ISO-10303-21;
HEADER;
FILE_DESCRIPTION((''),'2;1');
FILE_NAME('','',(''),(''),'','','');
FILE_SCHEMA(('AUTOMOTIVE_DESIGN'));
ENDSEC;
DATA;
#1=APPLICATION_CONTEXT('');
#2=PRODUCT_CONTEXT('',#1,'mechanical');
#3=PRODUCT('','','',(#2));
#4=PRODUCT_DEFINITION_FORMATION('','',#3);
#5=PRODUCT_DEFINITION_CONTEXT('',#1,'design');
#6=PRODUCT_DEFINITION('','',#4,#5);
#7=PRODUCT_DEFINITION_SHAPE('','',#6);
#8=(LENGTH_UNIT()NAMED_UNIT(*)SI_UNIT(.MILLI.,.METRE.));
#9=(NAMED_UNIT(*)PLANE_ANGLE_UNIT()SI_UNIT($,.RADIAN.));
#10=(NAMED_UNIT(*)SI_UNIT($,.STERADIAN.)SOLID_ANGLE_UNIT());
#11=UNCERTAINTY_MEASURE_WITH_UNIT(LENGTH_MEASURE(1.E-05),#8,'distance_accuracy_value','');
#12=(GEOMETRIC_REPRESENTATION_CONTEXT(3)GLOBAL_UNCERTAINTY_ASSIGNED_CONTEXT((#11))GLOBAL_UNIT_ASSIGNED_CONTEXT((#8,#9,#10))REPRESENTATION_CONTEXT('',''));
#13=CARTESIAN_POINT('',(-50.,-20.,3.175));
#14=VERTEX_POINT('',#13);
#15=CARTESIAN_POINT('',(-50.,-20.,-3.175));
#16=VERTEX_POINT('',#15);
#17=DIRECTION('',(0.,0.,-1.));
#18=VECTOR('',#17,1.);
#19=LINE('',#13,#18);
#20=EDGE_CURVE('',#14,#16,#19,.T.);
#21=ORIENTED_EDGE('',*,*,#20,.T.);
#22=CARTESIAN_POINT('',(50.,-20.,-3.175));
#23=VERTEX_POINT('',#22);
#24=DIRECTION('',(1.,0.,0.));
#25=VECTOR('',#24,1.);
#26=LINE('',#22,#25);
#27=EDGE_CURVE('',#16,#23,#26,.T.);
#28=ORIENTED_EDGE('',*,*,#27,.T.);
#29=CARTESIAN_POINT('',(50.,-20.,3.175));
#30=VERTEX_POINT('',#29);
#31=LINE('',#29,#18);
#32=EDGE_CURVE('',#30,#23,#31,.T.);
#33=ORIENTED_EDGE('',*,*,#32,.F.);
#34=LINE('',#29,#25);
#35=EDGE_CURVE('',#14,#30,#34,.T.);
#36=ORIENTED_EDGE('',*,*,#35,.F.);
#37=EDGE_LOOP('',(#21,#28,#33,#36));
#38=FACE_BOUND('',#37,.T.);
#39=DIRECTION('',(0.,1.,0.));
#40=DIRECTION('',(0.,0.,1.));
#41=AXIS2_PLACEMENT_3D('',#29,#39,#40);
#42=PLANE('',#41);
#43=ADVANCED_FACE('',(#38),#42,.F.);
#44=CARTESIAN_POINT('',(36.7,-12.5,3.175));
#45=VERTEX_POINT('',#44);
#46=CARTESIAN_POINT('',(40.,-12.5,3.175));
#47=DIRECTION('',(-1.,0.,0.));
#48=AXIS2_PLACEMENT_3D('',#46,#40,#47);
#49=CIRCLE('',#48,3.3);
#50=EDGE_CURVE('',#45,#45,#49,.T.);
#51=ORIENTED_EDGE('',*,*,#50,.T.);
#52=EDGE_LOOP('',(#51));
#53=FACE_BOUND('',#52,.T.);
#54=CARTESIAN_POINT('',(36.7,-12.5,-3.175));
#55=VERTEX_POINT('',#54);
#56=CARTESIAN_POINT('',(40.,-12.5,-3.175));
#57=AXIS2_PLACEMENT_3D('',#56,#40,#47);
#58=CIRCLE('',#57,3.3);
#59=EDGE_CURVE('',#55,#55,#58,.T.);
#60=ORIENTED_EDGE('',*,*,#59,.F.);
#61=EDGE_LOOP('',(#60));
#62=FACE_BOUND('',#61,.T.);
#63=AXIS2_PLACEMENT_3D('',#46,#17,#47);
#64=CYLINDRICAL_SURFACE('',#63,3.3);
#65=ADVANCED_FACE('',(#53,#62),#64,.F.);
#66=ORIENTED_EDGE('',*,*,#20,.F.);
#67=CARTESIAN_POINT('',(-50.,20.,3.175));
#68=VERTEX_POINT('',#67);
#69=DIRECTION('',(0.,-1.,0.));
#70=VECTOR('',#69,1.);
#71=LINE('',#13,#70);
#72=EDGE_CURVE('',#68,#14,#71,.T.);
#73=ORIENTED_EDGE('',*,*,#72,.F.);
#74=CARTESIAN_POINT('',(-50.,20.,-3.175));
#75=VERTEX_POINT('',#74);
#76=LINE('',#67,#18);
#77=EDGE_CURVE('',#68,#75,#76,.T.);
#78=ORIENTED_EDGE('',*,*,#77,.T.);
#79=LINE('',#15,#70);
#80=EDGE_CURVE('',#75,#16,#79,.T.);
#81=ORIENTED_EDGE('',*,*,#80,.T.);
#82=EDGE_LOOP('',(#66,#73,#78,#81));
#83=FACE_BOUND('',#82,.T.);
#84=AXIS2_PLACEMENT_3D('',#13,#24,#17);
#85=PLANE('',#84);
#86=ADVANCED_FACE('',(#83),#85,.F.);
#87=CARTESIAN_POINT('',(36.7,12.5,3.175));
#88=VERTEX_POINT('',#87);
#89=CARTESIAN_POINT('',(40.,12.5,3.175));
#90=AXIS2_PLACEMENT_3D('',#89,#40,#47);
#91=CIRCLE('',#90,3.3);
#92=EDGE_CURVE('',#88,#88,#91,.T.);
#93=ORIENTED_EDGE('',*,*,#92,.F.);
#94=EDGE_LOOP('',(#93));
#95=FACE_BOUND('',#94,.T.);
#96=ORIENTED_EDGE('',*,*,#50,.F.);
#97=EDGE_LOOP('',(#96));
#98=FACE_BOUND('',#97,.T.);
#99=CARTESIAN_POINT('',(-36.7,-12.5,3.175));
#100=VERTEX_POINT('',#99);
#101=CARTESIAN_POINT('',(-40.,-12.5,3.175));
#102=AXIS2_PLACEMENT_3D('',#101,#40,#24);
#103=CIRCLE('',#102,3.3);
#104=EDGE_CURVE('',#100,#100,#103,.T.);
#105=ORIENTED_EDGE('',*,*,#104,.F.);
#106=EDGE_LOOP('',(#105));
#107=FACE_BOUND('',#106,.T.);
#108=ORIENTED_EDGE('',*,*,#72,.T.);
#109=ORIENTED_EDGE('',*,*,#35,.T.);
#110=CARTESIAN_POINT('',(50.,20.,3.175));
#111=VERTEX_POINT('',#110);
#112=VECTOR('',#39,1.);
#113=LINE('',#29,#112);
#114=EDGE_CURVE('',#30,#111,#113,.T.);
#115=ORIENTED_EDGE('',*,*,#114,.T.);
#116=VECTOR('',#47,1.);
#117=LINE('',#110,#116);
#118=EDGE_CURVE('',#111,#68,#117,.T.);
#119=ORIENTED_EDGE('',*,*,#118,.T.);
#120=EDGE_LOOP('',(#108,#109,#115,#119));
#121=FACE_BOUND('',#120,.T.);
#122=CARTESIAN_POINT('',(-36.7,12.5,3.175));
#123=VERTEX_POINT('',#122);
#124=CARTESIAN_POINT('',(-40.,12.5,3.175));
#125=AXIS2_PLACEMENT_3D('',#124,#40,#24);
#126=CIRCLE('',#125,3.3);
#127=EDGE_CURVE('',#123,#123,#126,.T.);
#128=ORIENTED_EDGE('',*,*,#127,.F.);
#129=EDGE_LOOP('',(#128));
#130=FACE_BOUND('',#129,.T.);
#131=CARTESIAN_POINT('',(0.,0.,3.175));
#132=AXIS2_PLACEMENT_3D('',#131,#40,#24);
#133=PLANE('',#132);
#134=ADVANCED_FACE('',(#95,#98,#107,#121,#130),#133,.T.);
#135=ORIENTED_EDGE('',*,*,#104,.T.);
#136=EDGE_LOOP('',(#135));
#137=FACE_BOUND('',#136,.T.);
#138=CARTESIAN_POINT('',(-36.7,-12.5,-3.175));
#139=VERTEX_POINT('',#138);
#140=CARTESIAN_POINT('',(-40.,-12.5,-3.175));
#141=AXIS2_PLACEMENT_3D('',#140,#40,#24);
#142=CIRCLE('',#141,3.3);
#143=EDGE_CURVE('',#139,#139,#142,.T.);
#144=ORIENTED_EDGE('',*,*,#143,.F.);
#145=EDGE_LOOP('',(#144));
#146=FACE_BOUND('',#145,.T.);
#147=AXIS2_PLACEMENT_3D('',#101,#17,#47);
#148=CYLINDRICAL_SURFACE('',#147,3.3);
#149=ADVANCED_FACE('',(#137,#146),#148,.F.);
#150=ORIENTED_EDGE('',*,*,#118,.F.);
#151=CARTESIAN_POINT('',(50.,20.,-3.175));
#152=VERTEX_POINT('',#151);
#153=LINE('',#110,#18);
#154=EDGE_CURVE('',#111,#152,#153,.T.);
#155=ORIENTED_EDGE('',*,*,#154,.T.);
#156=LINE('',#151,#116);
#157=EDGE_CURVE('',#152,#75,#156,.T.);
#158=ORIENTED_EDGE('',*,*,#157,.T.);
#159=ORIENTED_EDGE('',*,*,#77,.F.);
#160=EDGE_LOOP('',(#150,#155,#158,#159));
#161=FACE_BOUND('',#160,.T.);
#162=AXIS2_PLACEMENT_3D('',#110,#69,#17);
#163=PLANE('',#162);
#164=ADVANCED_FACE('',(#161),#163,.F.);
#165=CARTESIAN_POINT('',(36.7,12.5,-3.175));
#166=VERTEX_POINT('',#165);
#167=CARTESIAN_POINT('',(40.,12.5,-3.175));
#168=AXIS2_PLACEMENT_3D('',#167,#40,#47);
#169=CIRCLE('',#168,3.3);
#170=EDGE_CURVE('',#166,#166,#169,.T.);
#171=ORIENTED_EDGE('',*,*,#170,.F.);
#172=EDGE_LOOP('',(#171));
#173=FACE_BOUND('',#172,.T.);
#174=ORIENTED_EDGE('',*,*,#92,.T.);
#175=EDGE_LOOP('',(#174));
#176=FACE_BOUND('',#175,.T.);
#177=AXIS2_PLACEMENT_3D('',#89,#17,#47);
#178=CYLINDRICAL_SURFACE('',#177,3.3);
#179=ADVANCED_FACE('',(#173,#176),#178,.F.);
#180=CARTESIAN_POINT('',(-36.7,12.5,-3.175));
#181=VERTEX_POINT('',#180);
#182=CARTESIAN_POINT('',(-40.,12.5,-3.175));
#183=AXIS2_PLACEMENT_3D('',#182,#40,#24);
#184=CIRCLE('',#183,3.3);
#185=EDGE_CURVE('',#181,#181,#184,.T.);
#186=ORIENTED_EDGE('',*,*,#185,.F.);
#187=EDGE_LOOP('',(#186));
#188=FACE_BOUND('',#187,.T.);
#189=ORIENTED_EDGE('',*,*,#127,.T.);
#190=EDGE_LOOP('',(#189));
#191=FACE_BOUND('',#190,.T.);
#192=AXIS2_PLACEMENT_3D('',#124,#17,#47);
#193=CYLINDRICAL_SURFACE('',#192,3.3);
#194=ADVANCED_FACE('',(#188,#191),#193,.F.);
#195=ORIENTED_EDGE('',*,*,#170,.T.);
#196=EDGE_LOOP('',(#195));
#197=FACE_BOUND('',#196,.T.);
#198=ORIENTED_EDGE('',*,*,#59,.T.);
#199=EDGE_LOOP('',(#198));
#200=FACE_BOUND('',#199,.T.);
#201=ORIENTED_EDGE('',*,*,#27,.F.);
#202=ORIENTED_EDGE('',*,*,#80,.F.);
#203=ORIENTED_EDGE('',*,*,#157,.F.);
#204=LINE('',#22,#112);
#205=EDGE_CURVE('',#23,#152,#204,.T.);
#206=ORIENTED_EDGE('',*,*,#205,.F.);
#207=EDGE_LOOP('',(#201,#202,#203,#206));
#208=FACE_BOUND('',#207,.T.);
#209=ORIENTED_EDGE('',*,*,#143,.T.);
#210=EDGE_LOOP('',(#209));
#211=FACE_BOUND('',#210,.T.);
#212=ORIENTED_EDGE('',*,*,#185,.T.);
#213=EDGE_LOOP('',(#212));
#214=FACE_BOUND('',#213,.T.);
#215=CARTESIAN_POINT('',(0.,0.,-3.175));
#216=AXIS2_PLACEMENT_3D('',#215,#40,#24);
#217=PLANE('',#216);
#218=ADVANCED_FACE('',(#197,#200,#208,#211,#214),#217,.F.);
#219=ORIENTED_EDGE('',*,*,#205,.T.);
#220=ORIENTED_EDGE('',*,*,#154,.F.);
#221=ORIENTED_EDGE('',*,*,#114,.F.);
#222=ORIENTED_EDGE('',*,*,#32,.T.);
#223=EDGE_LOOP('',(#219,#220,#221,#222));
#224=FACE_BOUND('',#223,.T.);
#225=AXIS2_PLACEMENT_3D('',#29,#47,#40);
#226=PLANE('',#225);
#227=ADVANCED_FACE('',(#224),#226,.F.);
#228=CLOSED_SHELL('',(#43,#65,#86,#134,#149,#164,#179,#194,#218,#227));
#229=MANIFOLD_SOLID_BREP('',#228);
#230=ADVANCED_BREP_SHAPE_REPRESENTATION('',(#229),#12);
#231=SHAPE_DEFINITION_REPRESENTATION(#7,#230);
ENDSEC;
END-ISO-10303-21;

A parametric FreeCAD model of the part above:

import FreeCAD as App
import Part
import Sketcher


def add_polygon(sketch, points):
    """Adds a closed chain of lines whose ends are joined by coincident constraints."""
    first, n = sketch.GeometryCount, len(points)
    for a, b in zip(points, points[1:] + points[:1]):
        sketch.addGeometry(Part.LineSegment(App.Vector(*a, 0), App.Vector(*b, 0)), False)
    for i in range(n):
        sketch.addConstraint(Sketcher.Constraint("Coincident", first + i, 2, first + (i + 1) % n, 1))

doc = App.newDocument("Part")
params = doc.addObject("Spreadsheet::Sheet", "Params")
for row, (alias, value) in enumerate([
    ("sketch1_diameter", "6.6 mm"),
    ("sketch1_width", "100 mm"),
    ("sketch1_height", "40 mm"),
    ("pad1_length", "6.35 mm"),
], start=1):
    params.set(f"A{row}", alias)
    params.set(f"B{row}", "=" + value)
    params.setAlias(f"B{row}", alias)

body = doc.addObject("PartDesign::Body", "Body")

# Sketch on XY plane
sketch1 = body.newObject("Sketcher::SketchObject", "Sketch")
sketch1.AttachmentSupport = (doc.getObject("XY_Plane"), [""])
sketch1.MapMode = "FlatFace"
add_polygon(sketch1, [(-50, 20), (-50, -20), (50, -20), (50, 20)])  # lines 0-3
sketch1.addGeometry(Part.Circle(App.Vector(-40, -12.5, 0), App.Vector(0, 0, 1), 3.3), False)  # 4
sketch1.addGeometry(Part.Circle(App.Vector(40, -12.5, 0), App.Vector(0, 0, 1), 3.3), False)  # 5
sketch1.addGeometry(Part.Circle(App.Vector(-40, 12.5, 0), App.Vector(0, 0, 1), 3.3), False)  # 6
sketch1.addGeometry(Part.Circle(App.Vector(40, 12.5, 0), App.Vector(0, 0, 1), 3.3), False)  # 7
sketch1.addConstraint([
    Sketcher.Constraint("Vertical", 0),
    Sketcher.Constraint("Horizontal", 1),
    Sketcher.Constraint("Vertical", 2),
    Sketcher.Constraint("Horizontal", 3),
    Sketcher.Constraint("Equal", 4, 5),
    Sketcher.Constraint("Equal", 5, 6),
    Sketcher.Constraint("Equal", 6, 7),
    Sketcher.Constraint("Symmetric", 5, 3, 6, 3, -1, 1),
    Sketcher.Constraint("Symmetric", 4, 3, 7, 3, -1, 1),
    Sketcher.Constraint("Symmetric", 0, 2, 2, 2, -1, 1),
    Sketcher.Constraint("Symmetric", 4, 3, 5, 3, -2),
    Sketcher.Constraint("Diameter", 4, 6.6),
    Sketcher.Constraint("DistanceX", 1, 1, 1, 2, 100.0),
    Sketcher.Constraint("DistanceY", 0, 2, 0, 1, 40.0),
    Sketcher.Constraint("DistanceX", 4, 3, -1, 1, 40.0),
    Sketcher.Constraint("DistanceY", 4, 3, 6, 3, 25.0),
])
sketch1.setExpression("Constraints[15]", "Params.sketch1_diameter")
sketch1.setExpression("Constraints[16]", "Params.sketch1_width")
sketch1.setExpression("Constraints[17]", "Params.sketch1_height")
pad1 = body.newObject("PartDesign::Pad", "Pad")
pad1.Profile = sketch1
pad1.setExpression("Length", "Params.pad1_length")
pad1.Midplane = True

doc.recompute()
